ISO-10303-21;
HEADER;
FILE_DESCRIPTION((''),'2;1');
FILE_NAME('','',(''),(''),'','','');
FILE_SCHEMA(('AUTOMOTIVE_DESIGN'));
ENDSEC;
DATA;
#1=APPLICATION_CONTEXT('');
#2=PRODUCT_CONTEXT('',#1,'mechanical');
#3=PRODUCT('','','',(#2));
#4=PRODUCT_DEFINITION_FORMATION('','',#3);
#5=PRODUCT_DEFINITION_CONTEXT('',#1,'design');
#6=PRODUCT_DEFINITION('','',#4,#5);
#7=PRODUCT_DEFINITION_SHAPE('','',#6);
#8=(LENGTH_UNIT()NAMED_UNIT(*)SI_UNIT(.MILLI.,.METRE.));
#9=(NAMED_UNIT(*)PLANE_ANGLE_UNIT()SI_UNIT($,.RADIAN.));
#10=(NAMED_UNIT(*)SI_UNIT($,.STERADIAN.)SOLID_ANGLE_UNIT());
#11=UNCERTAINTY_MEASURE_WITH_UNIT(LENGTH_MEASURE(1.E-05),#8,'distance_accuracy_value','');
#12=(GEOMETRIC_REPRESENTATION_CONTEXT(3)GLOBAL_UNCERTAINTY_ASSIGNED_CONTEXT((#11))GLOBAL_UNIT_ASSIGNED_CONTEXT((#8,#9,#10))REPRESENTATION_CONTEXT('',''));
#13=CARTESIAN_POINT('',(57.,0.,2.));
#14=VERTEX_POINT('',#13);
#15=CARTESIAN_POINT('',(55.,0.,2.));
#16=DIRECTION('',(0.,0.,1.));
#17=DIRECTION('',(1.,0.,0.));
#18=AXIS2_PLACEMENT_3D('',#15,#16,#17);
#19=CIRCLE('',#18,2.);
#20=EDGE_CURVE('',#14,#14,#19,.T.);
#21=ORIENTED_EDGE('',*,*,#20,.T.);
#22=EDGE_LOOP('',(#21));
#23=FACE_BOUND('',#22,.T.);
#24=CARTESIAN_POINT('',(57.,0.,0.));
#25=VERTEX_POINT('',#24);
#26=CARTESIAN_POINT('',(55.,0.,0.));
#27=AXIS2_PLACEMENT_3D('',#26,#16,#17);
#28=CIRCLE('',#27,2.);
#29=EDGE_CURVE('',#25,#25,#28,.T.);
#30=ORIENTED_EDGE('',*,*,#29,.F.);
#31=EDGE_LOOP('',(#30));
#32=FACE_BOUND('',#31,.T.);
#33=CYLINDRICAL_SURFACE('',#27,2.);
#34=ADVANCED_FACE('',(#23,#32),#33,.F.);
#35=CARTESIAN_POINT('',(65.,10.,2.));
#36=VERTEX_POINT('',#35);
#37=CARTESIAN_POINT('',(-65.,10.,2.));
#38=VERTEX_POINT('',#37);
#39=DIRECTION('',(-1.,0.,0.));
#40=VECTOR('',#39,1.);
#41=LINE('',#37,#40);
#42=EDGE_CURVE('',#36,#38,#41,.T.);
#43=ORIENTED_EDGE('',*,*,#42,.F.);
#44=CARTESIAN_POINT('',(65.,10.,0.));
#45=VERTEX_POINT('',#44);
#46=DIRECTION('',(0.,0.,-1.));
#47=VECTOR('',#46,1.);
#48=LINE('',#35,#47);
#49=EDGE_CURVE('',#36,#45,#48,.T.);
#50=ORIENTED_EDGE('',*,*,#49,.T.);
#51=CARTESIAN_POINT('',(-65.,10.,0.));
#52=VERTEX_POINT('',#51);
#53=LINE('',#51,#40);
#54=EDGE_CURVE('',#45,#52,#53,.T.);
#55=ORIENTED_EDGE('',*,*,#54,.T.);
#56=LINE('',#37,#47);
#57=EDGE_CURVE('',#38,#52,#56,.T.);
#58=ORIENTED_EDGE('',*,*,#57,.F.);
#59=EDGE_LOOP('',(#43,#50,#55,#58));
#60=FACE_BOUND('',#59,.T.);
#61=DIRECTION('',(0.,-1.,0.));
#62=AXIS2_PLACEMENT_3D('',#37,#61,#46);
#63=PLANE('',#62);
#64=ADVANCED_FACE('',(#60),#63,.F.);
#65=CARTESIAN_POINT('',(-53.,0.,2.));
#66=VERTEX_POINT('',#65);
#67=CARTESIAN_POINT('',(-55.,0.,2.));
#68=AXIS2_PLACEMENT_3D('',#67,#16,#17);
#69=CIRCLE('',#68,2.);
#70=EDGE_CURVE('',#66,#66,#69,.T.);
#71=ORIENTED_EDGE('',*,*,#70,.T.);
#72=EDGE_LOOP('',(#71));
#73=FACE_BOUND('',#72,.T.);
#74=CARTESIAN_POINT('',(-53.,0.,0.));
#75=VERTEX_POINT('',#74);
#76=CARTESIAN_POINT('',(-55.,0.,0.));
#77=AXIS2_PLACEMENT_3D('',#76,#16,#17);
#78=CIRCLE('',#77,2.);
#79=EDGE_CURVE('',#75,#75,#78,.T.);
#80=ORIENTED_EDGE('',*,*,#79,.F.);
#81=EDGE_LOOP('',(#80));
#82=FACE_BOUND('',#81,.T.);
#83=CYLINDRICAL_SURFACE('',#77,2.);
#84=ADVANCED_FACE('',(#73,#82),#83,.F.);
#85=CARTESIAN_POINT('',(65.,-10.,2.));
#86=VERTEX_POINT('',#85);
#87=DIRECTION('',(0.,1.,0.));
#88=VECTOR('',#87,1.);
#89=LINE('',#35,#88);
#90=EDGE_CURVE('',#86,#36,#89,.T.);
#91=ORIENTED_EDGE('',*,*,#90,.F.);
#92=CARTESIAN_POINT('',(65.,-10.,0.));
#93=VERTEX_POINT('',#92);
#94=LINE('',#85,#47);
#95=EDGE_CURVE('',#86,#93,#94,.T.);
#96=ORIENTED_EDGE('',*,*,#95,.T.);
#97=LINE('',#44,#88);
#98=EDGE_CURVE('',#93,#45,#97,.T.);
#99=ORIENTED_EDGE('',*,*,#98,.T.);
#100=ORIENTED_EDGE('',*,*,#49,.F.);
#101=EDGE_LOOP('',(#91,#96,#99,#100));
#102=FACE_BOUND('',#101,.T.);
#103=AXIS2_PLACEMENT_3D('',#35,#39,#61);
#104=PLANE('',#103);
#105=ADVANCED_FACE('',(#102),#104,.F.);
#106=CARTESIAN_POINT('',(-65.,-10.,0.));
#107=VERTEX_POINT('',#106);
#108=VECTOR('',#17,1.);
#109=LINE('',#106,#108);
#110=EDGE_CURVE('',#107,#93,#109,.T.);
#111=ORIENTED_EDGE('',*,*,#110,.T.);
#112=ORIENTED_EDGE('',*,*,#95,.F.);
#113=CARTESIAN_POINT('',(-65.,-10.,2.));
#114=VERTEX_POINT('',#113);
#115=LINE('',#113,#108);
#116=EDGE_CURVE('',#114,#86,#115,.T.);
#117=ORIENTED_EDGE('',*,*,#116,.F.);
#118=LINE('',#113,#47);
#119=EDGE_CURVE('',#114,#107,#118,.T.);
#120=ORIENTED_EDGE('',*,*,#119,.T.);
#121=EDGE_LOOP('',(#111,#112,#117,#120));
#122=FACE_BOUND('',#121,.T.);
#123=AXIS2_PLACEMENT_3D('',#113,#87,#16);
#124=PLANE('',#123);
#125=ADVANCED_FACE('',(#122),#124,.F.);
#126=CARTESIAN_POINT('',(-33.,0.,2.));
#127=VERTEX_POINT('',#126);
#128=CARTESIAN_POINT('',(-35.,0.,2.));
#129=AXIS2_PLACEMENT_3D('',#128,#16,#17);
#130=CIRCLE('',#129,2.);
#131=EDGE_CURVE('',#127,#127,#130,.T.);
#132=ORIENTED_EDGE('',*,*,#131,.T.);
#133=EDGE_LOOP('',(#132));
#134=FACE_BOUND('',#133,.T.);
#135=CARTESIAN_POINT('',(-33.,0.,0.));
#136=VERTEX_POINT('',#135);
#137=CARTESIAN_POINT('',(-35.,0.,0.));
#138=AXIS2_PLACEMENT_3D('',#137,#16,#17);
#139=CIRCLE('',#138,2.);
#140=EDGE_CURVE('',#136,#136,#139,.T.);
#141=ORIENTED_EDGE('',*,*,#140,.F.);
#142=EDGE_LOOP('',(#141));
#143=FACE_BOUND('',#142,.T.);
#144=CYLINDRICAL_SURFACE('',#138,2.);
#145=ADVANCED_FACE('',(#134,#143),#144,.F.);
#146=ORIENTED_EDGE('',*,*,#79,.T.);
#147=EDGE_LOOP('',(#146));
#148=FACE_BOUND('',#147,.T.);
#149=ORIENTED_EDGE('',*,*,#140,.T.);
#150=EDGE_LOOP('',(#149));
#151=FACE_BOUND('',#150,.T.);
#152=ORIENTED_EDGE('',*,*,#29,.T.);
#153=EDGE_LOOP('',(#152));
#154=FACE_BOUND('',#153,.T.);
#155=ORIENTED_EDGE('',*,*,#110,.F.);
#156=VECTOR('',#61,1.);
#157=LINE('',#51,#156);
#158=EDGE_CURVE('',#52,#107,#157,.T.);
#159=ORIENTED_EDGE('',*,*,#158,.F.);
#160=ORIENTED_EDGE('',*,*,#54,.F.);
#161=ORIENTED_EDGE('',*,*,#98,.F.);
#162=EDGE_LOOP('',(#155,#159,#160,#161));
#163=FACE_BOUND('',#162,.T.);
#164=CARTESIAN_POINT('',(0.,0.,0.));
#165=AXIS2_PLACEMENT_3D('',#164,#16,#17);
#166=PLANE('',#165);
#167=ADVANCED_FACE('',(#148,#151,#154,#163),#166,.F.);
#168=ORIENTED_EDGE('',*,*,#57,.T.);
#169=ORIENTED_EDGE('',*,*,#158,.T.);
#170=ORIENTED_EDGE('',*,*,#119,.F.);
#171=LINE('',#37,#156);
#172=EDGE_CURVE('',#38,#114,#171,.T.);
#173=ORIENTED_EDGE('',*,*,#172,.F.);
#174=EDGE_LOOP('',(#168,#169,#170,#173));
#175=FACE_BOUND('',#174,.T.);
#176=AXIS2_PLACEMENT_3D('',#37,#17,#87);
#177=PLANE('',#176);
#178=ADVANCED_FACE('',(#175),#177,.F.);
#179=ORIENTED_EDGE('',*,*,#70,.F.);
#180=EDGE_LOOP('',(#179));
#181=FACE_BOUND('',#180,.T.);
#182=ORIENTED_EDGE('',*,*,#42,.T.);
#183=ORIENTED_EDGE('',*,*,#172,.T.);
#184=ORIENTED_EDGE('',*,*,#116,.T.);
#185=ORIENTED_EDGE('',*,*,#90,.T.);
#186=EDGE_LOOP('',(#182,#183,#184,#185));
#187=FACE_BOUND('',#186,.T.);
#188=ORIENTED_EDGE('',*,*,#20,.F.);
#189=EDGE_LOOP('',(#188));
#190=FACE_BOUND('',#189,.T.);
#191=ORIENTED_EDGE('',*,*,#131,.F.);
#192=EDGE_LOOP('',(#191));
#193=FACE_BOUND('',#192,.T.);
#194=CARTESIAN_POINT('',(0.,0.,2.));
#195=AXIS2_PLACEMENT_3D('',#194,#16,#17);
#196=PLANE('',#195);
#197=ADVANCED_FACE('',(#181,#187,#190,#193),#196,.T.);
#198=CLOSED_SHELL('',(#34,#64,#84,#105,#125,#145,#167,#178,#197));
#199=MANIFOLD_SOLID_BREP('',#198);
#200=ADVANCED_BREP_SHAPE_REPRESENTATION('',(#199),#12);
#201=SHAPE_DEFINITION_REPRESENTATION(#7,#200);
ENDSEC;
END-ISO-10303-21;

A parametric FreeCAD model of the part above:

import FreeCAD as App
import Part
import Sketcher

V = App.Vector

doc = App.newDocument("Part")
body = doc.addObject("PartDesign::Body", "Body")

# Sketch on XY plane
sketch1 = body.newObject("Sketcher::SketchObject", "Sketch")
sketch1.AttachmentSupport = (doc.getObject("XY_Plane"), [""])
sketch1.MapMode = "FlatFace"
sketch1.addGeometry([
    Part.LineSegment(V(-65, 10, 0), V(-65, -10, 0)),
    Part.LineSegment(V(-65, -10, 0), V(65, -10, 0)),
    Part.LineSegment(V(65, -10, 0), V(65, 10, 0)),
    Part.LineSegment(V(65, 10, 0), V(-65, 10, 0)),
], False)
sketch1.addConstraint([
    Sketcher.Constraint("Coincident", 0, 2, 1, 1),
    Sketcher.Constraint("Coincident", 1, 2, 2, 1),
    Sketcher.Constraint("Coincident", 2, 2, 3, 1),
    Sketcher.Constraint("Coincident", 3, 2, 0, 1),
    Sketcher.Constraint("Vertical", 0),
    Sketcher.Constraint("Horizontal", 1),
    Sketcher.Constraint("Vertical", 2),
    Sketcher.Constraint("Horizontal", 3),
    Sketcher.Constraint("Symmetric", 0, 2, 2, 2, -1, 1),
    Sketcher.Constraint("DistanceX", 1, 1, 1, 2, 130.0),
    Sketcher.Constraint("DistanceY", 0, 2, 0, 1, 20.0),
])
pad1 = body.newObject("PartDesign::Pad", "Pad")
pad1.Profile = sketch1
pad1.Length = 2

# Sketch on XY plane
sketch2 = body.newObject("Sketcher::SketchObject", "Sketch001")
sketch2.AttachmentSupport = (doc.getObject("XY_Plane"), [""])
sketch2.MapMode = "FlatFace"
sketch2.AttachmentOffset = App.Placement(V(0, 0, 2), App.Rotation())
sketch2.addGeometry([
    Part.Circle(V(-55, 0, 0), V(0, 0, 1), 2),
    Part.Circle(V(55, 0, 0), V(0, 0, 1), 2),
], False)
sketch2.addConstraint([
    Sketcher.Constraint("Equal", 0, 1),
    Sketcher.Constraint("Symmetric", 0, 3, 1, 3, -1, 1),
    Sketcher.Constraint("PointOnObject", 0, 3, -1),
    Sketcher.Constraint("Diameter", 0, 4.0),
    Sketcher.Constraint("DistanceX", 0, 3, -1, 1, 55.0),
])
pocket1 = body.newObject("PartDesign::Pocket", "Pocket")
pocket1.Profile = sketch2
pocket1.Length = 2

# Sketch on XY plane
sketch3 = body.newObject("Sketcher::SketchObject", "Sketch002")
sketch3.AttachmentSupport = (doc.getObject("XY_Plane"), [""])
sketch3.MapMode = "FlatFace"
sketch3.AttachmentOffset = App.Placement(V(0, 0, 2), App.Rotation())
sketch3.addGeometry(Part.Circle(V(-35, 0, 0), V(0, 0, 1), 2), False)
sketch3.addConstraint([
    Sketcher.Constraint("PointOnObject", 0, 3, -1),
    Sketcher.Constraint("Diameter", 0, 4.0),
    Sketcher.Constraint("DistanceX", 0, 3, -1, 1, 35.0),
])
pocket2 = body.newObject("PartDesign::Pocket", "Pocket001")
pocket2.Profile = sketch3
pocket2.Length = 2

doc.recompute()
